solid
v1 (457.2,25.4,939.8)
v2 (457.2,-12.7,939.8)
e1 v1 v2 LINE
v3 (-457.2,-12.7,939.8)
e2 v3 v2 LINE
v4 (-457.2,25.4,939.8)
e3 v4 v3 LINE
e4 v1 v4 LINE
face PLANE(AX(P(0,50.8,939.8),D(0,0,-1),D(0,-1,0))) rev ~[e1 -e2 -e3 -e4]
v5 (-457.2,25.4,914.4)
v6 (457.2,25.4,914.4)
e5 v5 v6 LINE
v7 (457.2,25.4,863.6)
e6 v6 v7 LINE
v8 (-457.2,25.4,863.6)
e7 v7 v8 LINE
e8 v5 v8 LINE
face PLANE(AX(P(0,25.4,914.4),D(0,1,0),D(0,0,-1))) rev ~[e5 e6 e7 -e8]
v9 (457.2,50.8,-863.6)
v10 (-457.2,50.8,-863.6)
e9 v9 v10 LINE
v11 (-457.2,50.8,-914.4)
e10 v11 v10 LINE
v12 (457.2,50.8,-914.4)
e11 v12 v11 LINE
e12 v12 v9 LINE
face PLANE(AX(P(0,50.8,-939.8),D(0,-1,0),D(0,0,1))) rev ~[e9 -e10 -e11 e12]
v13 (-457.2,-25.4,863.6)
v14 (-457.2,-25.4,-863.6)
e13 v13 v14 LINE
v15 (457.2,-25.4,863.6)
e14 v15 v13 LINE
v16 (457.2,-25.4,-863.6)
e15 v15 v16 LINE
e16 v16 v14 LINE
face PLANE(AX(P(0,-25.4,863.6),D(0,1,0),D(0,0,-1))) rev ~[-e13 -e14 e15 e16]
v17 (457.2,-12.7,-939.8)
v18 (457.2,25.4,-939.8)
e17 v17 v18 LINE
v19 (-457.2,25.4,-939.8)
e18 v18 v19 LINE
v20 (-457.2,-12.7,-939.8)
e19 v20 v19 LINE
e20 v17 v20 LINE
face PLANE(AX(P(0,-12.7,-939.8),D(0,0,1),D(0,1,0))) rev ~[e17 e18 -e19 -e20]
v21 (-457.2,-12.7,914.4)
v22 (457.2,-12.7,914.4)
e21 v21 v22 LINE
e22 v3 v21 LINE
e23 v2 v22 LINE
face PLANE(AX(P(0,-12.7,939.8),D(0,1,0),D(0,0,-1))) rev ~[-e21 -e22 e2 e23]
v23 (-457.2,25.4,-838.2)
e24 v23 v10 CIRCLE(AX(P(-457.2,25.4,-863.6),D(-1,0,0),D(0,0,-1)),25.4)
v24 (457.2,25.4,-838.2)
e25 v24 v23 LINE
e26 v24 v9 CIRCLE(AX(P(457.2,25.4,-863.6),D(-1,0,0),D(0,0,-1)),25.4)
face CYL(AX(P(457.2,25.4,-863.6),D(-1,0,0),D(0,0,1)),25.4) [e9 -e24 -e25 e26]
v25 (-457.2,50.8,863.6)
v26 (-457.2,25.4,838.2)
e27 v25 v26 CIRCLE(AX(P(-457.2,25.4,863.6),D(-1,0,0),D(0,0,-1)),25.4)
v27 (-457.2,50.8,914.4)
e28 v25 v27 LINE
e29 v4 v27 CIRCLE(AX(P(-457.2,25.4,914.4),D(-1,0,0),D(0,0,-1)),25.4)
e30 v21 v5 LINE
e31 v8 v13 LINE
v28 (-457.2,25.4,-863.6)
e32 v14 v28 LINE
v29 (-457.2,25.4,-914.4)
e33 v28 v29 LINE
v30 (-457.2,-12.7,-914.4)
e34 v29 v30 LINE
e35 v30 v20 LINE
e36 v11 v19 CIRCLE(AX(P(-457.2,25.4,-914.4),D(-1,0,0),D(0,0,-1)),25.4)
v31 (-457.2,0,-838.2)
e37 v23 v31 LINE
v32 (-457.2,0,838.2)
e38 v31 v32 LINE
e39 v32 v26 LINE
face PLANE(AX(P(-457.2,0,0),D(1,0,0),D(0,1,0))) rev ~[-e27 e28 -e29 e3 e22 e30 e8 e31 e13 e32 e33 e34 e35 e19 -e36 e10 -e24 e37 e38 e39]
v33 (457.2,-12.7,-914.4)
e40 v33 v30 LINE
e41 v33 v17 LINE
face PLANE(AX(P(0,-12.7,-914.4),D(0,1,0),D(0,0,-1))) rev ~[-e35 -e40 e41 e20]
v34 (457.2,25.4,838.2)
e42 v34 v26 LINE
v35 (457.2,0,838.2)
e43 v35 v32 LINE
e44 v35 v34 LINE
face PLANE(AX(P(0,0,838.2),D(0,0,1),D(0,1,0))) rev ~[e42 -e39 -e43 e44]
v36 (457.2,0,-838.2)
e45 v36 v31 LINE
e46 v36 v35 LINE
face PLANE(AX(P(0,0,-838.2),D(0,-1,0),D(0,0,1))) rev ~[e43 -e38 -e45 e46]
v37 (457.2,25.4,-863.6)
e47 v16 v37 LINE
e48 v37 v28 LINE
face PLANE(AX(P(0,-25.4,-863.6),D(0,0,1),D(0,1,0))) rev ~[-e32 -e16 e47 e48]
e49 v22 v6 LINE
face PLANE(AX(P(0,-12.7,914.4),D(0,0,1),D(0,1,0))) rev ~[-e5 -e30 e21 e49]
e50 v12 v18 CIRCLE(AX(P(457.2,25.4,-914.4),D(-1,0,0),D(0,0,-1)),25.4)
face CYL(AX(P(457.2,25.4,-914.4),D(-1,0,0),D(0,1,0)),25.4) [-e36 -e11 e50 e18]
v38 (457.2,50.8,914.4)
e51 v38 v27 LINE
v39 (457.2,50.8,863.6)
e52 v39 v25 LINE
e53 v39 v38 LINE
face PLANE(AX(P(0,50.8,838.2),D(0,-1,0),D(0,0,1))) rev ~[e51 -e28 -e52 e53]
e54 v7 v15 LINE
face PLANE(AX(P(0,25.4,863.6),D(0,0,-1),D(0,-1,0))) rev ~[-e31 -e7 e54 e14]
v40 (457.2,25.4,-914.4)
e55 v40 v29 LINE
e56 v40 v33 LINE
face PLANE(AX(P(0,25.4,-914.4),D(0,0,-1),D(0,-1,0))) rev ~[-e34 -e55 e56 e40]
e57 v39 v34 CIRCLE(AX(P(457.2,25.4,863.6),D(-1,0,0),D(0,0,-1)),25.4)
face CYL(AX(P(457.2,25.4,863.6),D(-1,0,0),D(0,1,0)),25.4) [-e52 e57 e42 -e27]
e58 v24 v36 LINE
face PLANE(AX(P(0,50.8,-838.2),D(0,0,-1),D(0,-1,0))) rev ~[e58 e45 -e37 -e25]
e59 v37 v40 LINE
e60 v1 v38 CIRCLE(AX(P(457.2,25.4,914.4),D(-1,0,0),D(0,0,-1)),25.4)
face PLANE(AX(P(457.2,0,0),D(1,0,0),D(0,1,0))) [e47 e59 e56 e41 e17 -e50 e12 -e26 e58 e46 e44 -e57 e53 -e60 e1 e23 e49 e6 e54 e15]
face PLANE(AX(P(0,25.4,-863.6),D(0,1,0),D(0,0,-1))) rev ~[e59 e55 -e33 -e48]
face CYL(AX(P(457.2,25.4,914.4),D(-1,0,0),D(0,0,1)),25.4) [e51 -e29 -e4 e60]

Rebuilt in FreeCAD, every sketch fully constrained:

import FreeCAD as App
import Part
import Sketcher
Q = App.Units.Quantity


def edges_at(feature, points):
    """Names of the edges that pass closest to the given points."""
    edges = feature.Shape.Edges
    near = lambda p: min(range(len(edges)), key=lambda i: edges[i].distToShape(Part.Vertex(*p))[0])
    return sorted({f"Edge{near(p) + 1}" for p in points})

doc = App.newDocument("Part")
body = doc.addObject("PartDesign::Body", "Body")

# Sketch on YZ plane
sketch1 = doc.addObject("Sketcher::SketchObject", "Sketch")
body.addObject(sketch1)
sketch1.AttachmentSupport = (doc.YZ_Plane, [""])
sketch1.MapMode = "FlatFace"
sketch1.addGeometry([
    Part.LineSegment(App.Vector(51, 940, 0), App.Vector(-13, 940, 0)),  # 0
    Part.LineSegment(App.Vector(-13, 940, 0), App.Vector(-13, 914, 0)),  # 1
    Part.LineSegment(App.Vector(-13, 914, 0), App.Vector(25, 914, 0)),  # 2
    Part.LineSegment(App.Vector(25, 914, 0), App.Vector(25, 864, 0)),  # 3
    Part.LineSegment(App.Vector(25, 864, 0), App.Vector(-25, 864, 0)),  # 4
    Part.LineSegment(App.Vector(-25, 864, 0), App.Vector(-25, -864, 0)),  # 5
    Part.LineSegment(App.Vector(-25, -864, 0), App.Vector(25, -864, 0)),  # 6
    Part.LineSegment(App.Vector(25, -864, 0), App.Vector(25, -914, 0)),  # 7
    Part.LineSegment(App.Vector(25, -914, 0), App.Vector(-13, -914, 0)),  # 8
    Part.LineSegment(App.Vector(-13, -914, 0), App.Vector(-13, -940, 0)),  # 9
    Part.LineSegment(App.Vector(-13, -940, 0), App.Vector(51, -940, 0)),  # 10
    Part.LineSegment(App.Vector(51, -940, 0), App.Vector(51, -838, 0)),  # 11
    Part.LineSegment(App.Vector(51, -838, 0), App.Vector(0, -838, 0)),  # 12
    Part.LineSegment(App.Vector(0, -838, 0), App.Vector(0, 838, 0)),  # 13
    Part.LineSegment(App.Vector(0, 838, 0), App.Vector(51, 838, 0)),  # 14
    Part.LineSegment(App.Vector(51, 838, 0), App.Vector(51, 940, 0)),  # 15
], False)
sketch1.addConstraint([
    Sketcher.Constraint("Coincident", 0, 2, 1, 1),
    Sketcher.Constraint("Coincident", 1, 2, 2, 1),
    Sketcher.Constraint("Coincident", 2, 2, 3, 1),
    Sketcher.Constraint("Coincident", 3, 2, 4, 1),
    Sketcher.Constraint("Coincident", 4, 2, 5, 1),
    Sketcher.Constraint("Coincident", 5, 2, 6, 1),
    Sketcher.Constraint("Coincident", 6, 2, 7, 1),
    Sketcher.Constraint("Coincident", 7, 2, 8, 1),
    Sketcher.Constraint("Coincident", 8, 2, 9, 1),
    Sketcher.Constraint("Coincident", 9, 2, 10, 1),
    Sketcher.Constraint("Coincident", 10, 2, 11, 1),
    Sketcher.Constraint("Coincident", 11, 2, 12, 1),
    Sketcher.Constraint("Coincident", 12, 2, 13, 1),
    Sketcher.Constraint("Coincident", 13, 2, 14, 1),
    Sketcher.Constraint("Coincident", 14, 2, 15, 1),
    Sketcher.Constraint("Coincident", 15, 2, 0, 1),
    Sketcher.Constraint("Horizontal", 0),
    Sketcher.Constraint("Vertical", 1),
    Sketcher.Constraint("Horizontal", 2),
    Sketcher.Constraint("Vertical", 3),
    Sketcher.Constraint("Horizontal", 4),
    Sketcher.Constraint("Vertical", 5),
    Sketcher.Constraint("Horizontal", 6),
    Sketcher.Constraint("Vertical", 7),
    Sketcher.Constraint("Horizontal", 8),
    Sketcher.Constraint("Vertical", 9),
    Sketcher.Constraint("Horizontal", 10),
    Sketcher.Constraint("Vertical", 11),
    Sketcher.Constraint("Horizontal", 12),
    Sketcher.Constraint("Vertical", 13),
    Sketcher.Constraint("Horizontal", 14),
    Sketcher.Constraint("Vertical", 15),
    Sketcher.Constraint("Symmetric", 3, 2, 5, 2, -1, 1),
    Sketcher.Constraint("Symmetric", 12, 2, 13, 2, -1, 1),
    Sketcher.Constraint("Symmetric", 2, 2, 7, 2, -1),
    Sketcher.Constraint("Symmetric", 0, 2, 9, 2, -1),
    Sketcher.Constraint("Vertical", 11, 2, 14, 2),
    Sketcher.Constraint("Equal", 6, 12),
    Sketcher.Constraint("Equal", 14, 3),
    Sketcher.Constraint("DistanceX", 4, 2, 4, 1, Q("2 in")),
    Sketcher.Constraint("DistanceY", 1, 2, 1, 1, Q("1 in")),
    Sketcher.Constraint("DistanceX", 0, 2, 0, 1, Q("2.5 in")),
    Sketcher.Constraint("DistanceY", 6, 2, 11, 2, Q("1 in")),
    Sketcher.Constraint("DistanceY", 5, 2, 5, 1, Q("68 in")),
])
pad1 = doc.addObject("PartDesign::Pad", "Pad")
body.addObject(pad1)
pad1.Profile = sketch1
pad1.Length = Q("36 in")
pad1.Midplane = True
doc.recompute()

fillet = doc.addObject("PartDesign::Fillet", "Fillet")
body.addObject(fillet)
fillet.Base = (pad1, edges_at(pad1, [
    (0, 50.8, 939.8),
    (0, 50.8, -939.8),
    (0, 50.8, -838.2),
    (0, 50.8, 838.2),
]))
fillet.Radius = Q("1 in")

doc.recompute()
